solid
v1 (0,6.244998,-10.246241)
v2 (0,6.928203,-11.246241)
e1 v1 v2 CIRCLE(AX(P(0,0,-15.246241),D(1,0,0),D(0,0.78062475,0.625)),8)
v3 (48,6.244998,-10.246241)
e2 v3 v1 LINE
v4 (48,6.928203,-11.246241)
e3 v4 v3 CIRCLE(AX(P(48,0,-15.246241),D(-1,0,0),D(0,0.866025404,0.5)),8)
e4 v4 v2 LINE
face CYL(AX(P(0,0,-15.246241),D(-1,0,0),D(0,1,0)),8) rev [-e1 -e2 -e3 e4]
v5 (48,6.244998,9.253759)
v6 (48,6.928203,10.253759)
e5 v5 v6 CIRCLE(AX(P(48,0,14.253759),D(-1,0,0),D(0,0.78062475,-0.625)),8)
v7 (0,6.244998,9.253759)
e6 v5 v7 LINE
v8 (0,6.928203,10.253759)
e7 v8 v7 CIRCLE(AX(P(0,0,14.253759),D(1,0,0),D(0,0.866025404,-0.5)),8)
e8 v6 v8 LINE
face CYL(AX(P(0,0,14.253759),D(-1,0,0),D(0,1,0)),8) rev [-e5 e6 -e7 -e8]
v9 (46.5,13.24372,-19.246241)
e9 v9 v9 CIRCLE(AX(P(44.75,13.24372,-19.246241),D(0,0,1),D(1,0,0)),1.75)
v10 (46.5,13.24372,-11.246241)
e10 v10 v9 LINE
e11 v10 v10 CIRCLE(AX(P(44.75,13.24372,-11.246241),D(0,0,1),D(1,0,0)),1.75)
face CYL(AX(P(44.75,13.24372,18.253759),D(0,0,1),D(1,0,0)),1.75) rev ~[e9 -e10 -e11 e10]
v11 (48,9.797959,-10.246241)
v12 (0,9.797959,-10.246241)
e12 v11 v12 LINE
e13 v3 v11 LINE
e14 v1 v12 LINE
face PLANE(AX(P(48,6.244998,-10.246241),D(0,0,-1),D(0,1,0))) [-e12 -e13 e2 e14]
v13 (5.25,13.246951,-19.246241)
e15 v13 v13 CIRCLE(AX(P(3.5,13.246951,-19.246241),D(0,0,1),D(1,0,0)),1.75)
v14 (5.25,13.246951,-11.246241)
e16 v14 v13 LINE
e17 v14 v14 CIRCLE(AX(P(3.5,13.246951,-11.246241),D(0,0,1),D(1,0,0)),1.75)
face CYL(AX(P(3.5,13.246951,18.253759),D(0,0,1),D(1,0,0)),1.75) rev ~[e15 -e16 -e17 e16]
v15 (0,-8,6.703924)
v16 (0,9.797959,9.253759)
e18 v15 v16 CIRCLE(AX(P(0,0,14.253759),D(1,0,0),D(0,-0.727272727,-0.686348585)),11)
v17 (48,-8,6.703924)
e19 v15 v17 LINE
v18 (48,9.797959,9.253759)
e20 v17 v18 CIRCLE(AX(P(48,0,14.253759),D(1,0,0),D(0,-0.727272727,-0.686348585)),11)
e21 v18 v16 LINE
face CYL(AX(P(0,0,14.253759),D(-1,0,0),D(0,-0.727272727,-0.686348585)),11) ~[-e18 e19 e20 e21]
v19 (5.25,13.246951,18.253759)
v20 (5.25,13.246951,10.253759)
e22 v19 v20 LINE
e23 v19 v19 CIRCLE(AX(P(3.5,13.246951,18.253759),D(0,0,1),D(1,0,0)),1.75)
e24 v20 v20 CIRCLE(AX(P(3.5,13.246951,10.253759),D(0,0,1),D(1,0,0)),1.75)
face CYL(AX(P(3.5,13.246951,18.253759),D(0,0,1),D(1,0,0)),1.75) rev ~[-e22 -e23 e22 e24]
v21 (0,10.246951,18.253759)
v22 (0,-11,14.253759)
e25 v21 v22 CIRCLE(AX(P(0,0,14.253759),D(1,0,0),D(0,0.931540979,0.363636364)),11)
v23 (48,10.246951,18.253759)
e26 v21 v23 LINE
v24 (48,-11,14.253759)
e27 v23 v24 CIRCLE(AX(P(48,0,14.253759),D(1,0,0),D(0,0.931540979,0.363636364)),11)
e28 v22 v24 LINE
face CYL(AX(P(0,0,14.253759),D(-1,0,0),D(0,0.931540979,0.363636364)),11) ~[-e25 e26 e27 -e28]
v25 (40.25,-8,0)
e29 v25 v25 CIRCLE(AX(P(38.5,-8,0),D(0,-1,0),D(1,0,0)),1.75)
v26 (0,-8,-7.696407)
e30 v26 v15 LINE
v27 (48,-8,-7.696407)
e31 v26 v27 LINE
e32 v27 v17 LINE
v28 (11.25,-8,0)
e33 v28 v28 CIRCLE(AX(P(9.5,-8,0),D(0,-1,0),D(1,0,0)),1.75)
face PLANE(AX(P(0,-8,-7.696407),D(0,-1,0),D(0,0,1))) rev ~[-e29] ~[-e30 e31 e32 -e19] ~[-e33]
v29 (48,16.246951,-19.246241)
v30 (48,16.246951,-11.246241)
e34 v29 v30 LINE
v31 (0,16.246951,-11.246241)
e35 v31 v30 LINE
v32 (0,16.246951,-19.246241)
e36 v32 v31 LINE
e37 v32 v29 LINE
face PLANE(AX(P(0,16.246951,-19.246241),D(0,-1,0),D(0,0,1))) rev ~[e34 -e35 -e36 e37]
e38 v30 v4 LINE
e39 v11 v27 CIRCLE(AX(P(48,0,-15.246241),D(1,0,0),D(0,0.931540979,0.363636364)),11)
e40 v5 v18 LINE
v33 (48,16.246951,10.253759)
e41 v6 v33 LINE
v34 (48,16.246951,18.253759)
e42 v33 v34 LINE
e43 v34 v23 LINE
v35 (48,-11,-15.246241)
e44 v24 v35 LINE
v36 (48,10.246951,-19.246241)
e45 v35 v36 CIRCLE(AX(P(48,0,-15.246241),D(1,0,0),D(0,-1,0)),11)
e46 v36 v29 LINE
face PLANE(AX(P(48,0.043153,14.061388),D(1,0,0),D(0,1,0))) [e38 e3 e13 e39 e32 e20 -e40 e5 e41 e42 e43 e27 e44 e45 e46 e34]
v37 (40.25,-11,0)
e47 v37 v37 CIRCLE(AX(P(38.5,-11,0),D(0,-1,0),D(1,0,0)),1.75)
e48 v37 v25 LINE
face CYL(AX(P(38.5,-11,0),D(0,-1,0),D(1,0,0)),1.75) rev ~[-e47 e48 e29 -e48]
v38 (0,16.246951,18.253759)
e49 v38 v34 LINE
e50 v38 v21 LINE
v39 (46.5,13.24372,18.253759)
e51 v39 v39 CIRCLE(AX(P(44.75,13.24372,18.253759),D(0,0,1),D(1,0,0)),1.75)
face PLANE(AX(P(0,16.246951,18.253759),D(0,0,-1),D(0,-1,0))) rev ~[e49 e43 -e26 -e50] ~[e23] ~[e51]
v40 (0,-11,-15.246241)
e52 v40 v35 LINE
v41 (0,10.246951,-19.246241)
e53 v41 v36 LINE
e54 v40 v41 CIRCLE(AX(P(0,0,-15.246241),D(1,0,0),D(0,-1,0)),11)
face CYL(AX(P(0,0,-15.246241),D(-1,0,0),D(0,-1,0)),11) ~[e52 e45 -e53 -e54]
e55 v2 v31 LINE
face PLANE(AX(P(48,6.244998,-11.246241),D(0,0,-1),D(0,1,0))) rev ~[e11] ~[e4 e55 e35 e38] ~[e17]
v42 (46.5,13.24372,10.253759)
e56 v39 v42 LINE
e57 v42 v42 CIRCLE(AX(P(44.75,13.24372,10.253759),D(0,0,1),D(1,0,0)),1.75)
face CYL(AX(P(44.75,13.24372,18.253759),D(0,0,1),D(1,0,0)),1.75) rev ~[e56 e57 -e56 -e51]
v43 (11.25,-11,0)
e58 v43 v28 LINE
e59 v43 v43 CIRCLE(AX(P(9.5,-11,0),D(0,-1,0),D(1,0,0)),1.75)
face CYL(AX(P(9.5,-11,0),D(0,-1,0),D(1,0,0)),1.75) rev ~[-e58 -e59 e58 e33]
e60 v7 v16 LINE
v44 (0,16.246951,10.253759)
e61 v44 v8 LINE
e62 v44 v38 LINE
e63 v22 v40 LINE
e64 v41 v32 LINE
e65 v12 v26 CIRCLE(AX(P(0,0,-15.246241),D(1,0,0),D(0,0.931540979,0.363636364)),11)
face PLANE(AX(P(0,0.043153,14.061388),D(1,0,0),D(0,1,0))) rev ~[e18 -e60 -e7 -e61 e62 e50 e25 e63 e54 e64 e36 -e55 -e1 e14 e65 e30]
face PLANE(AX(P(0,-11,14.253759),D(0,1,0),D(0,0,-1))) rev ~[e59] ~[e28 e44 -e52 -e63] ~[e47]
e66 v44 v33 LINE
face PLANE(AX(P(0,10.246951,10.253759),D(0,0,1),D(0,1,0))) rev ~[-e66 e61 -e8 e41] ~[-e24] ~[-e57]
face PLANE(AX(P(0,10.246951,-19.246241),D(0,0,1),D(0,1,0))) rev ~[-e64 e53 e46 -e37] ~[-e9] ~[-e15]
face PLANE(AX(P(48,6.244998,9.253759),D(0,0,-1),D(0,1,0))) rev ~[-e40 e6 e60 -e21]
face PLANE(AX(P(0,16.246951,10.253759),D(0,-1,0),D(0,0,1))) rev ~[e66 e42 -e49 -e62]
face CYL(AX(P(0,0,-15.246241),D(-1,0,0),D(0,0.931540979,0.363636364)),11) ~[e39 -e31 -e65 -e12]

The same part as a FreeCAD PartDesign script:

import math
import FreeCAD as App
import Part
import Sketcher
from FreeCAD import Vector
Q = App.Units.Quantity


def add_polygon(sketch, points):
    """Adds a closed chain of lines whose ends are joined by coincident constraints."""
    first, n = sketch.GeometryCount, len(points)
    for a, b in zip(points, points[1:] + points[:1]):
        sketch.addGeometry(Part.LineSegment(App.Vector(*a, 0), App.Vector(*b, 0)), False)
    for i in range(n):
        sketch.addConstraint(Sketcher.Constraint("Coincident", first + i, 2, first + (i + 1) % n, 1))

doc = App.newDocument("Part")
params = doc.addObject("Spreadsheet::Sheet", "Params")
for row, (alias, value) in enumerate([
    ("sketch1_diameter", "16 mm"),
    ("sketch1_radius", "11 mm"),
    ("sketch1_width", "6 mm"),
    ("sketch1_height", "8 mm"),
    ("sketch1_height2", "29.5 mm"),
    ("pad1_length", "48 mm"),
    ("sketch2_diameter", "3.5 mm"),
    ("pocket1_length", "5 mm"),
    ("sketch3_diameter", "3.5 mm"),
    ("pocket2_length", "50 mm"),
    ("sketch4_height", "1 mm"),
    ("pocket3_length", "80 mm"),
], start=1):
    params.set(f"A{row}", alias)
    params.set(f"B{row}", "=" + value)
    params.setAlias(f"B{row}", alias)

body = doc.addObject("PartDesign::Body", "Body")

sketch1 = body.newObject("Sketcher::SketchObject", "Sketch")
sketch1.AttachmentSupport = (doc.getObject("YZ_Plane"), [""])
sketch1.MapMode = "FlatFace"
sketch1.addGeometry([
    Part.ArcOfCircle(Part.Circle(Vector(0, 14, 0), Vector(0, 0, 1), 11), math.radians(21), math.radians(180)),
    Part.LineSegment(Vector(-11, 14, 0), Vector(-11, -15, 0)),
    Part.ArcOfCircle(Part.Circle(Vector(0, -15, 0), Vector(0, 0, 1), 11), math.radians(180), math.radians(339)),
    Part.LineSegment(Vector(10, -19, 0), Vector(16, -19, 0)),
    Part.LineSegment(Vector(16, -19, 0), Vector(16, -11, 0)),
    Part.LineSegment(Vector(16, -11, 0), Vector(10, -11, 0)),
    Part.ArcOfCircle(Part.Circle(Vector(0, -15, 0), Vector(0, 0, 1), 11), math.radians(21), math.radians(137)),
    Part.LineSegment(Vector(-8, -8, 0), Vector(-8, 7, 0)),
    Part.ArcOfCircle(Part.Circle(Vector(0, 14, 0), Vector(0, 0, 1), 11), math.radians(-137), math.radians(-21)),
    Part.LineSegment(Vector(10, 10, 0), Vector(16, 10, 0)),
    Part.LineSegment(Vector(16, 10, 0), Vector(16, 18, 0)),
    Part.LineSegment(Vector(16, 18, 0), Vector(10, 18, 0)),
    Part.Circle(Vector(0, -15, 0), Vector(0, 0, 1), 8),
    Part.Circle(Vector(0, 14, 0), Vector(0, 0, 1), 8),
], False)
sketch1.addConstraint([
    Sketcher.Constraint("Tangent", 0, 2, 1, 1),
    Sketcher.Constraint("Tangent", 1, 2, 2, 1),
    Sketcher.Constraint("Coincident", 2, 2, 3, 1),
    Sketcher.Constraint("Coincident", 3, 2, 4, 1),
    Sketcher.Constraint("Coincident", 4, 2, 5, 1),
    Sketcher.Constraint("Coincident", 5, 2, 6, 1),
    Sketcher.Constraint("Coincident", 6, 2, 7, 1),
    Sketcher.Constraint("Coincident", 7, 2, 8, 1),
    Sketcher.Constraint("Coincident", 8, 2, 9, 1),
    Sketcher.Constraint("Coincident", 9, 2, 10, 1),
    Sketcher.Constraint("Coincident", 10, 2, 11, 1),
    Sketcher.Constraint("Coincident", 11, 2, 0, 1),
    Sketcher.Constraint("Vertical", 1),
    Sketcher.Constraint("Horizontal", 3),
    Sketcher.Constraint("Vertical", 4),
    Sketcher.Constraint("Horizontal", 5),
    Sketcher.Constraint("Vertical", 7),
    Sketcher.Constraint("Horizontal", 9),
    Sketcher.Constraint("Vertical", 10),
    Sketcher.Constraint("Horizontal", 11),
    Sketcher.Constraint("Coincident", 6, 3, 2, 3),
    Sketcher.Constraint("Coincident", 8, 3, 0, 3),
    Sketcher.Constraint("Coincident", 12, 3, 2, 3),
    Sketcher.Constraint("Coincident", 13, 3, 0, 3),
    Sketcher.Constraint("Equal", 0, 2),
    Sketcher.Constraint("Equal", 2, 6),
    Sketcher.Constraint("Equal", 6, 8),
    Sketcher.Constraint("Equal", 12, 13),
    Sketcher.Constraint("PointOnObject", 0, 3, -2),
    Sketcher.Constraint("Vertical", 2, 2, 5, 2),
    Sketcher.Constraint("Vertical", 5, 2, 8, 2),
    Sketcher.Constraint("Vertical", 4, 2, 9, 2),
    Sketcher.Constraint("Vertical", 8, 2, 11, 2),
    Sketcher.Constraint("Diameter", 12, Q("16 mm")),
    Sketcher.Constraint("Radius", 0, Q("11 mm")),
    Sketcher.Constraint("DistanceX", 3, 1, 3, 2, Q("6 mm")),
    Sketcher.Constraint("DistanceY", 4, 1, 4, 2, Q("8 mm")),
    Sketcher.Constraint("DistanceY", 1, 2, 1, 1, Q("29.5 mm")),
    Sketcher.Constraint("DistanceX", 6, 2, -1, 1, Q("8 mm")),
    Sketcher.Constraint("DistanceY", -1, 1, 0, 3, Q("14.253759 mm")),
])
sketch1.setExpression("Constraints[33]", "Params.sketch1_diameter")
sketch1.setExpression("Constraints[34]", "Params.sketch1_radius")
sketch1.setExpression("Constraints[35]", "Params.sketch1_width")
sketch1.setExpression("Constraints[36]", "Params.sketch1_height")
sketch1.setExpression("Constraints[37]", "Params.sketch1_height2")
pad1 = body.newObject("PartDesign::Pad", "Pad")
pad1.Profile = sketch1
pad1.setExpression("Length", "Params.pad1_length")

sketch2 = body.newObject("Sketcher::SketchObject", "Sketch001")
sketch2.AttachmentSupport = (doc.getObject("XZ_Plane"), [""])
sketch2.MapMode = "FlatFace"
sketch2.AttachmentOffset = App.Placement(Vector(0, 0, 11), App.Rotation())
sketch2.addGeometry([
    Part.Circle(Vector(38.5, 0, 0), Vector(0, 0, 1), 1.8),
    Part.Circle(Vector(9.5, 0, 0), Vector(0, 0, 1), 1.8),
], False)
sketch2.addConstraint([
    Sketcher.Constraint("Equal", 0, 1),
    Sketcher.Constraint("PointOnObject", 0, 3, -1),
    Sketcher.Constraint("PointOnObject", 1, 3, -1),
    Sketcher.Constraint("Diameter", 0, Q("3.5 mm")),
    Sketcher.Constraint("DistanceX", 1, 3, 0, 3, Q("29 mm")),
    Sketcher.Constraint("DistanceX", -1, 1, 0, 3, Q("38.5 mm")),
])
sketch2.setExpression("Constraints[3]", "Params.sketch2_diameter")
pocket1 = body.newObject("PartDesign::Pocket", "Pocket")
pocket1.Profile = sketch2
pocket1.setExpression("Length", "Params.pocket1_length")

sketch3 = body.newObject("Sketcher::SketchObject", "Sketch002")
sketch3.AttachmentSupport = (doc.getObject("XY_Plane"), [""])
sketch3.MapMode = "FlatFace"
sketch3.AttachmentOffset = App.Placement(Vector(0, 0, 18.253759), App.Rotation())
sketch3.addGeometry([
    Part.Circle(Vector(3.5, 13.2, 0), Vector(0, 0, 1), 1.8),
    Part.Circle(Vector(44.7, 13.2, 0), Vector(0, 0, 1), 1.8),
], False)
sketch3.addConstraint([
    Sketcher.Constraint("Equal", 0, 1),
    Sketcher.Constraint("Diameter", 0, Q("3.5 mm")),
    Sketcher.Constraint("DistanceX", -1, 1, 0, 3, Q("3.5 mm")),
    Sketcher.Constraint("DistanceX", -1, 1, 1, 3, Q("44.75 mm")),
    Sketcher.Constraint("DistanceY", -1, 1, 0, 3, Q("13.246951 mm")),
    Sketcher.Constraint("DistanceY", -1, 1, 1, 3, Q("13.24372 mm")),
])
sketch3.setExpression("Constraints[1]", "Params.sketch3_diameter")
pocket2 = body.newObject("PartDesign::Pocket", "Pocket001")
pocket2.Profile = sketch3
pocket2.setExpression("Length", "Params.pocket2_length")

sketch4 = body.newObject("Sketcher::SketchObject", "Sketch003")
sketch4.AttachmentSupport = (doc.getObject("YZ_Plane"), [""])
sketch4.MapMode = "FlatFace"
sketch4.AttachmentOffset = App.Placement(Vector(0, 0, 48), App.Rotation())
add_polygon(sketch4, [(6.2, 10.3), (6.2, 9.3), (10.2, 9.3), (10.2, 10.3)])
add_polygon(sketch4, [(6.2, -10.2), (6.2, -11.2), (10.2, -11.2), (10.2, -10.2)])
sketch4.addConstraint([
    Sketcher.Constraint("Vertical", 0),
    Sketcher.Constraint("Horizontal", 1),
    Sketcher.Constraint("Vertical", 2),
    Sketcher.Constraint("Horizontal", 3),
    Sketcher.Constraint("Vertical", 4),
    Sketcher.Constraint("Horizontal", 5),
    Sketcher.Constraint("Vertical", 6),
    Sketcher.Constraint("Horizontal", 7),
    Sketcher.Constraint("Vertical", 3, 2, 4, 2),
    Sketcher.Constraint("Vertical", 2, 2, 5, 2),
    Sketcher.Constraint("Equal", 2, 4),
    Sketcher.Constraint("DistanceY", 0, 2, 0, 1, Q("1 mm")),
    Sketcher.Constraint("DistanceY", 4, 2, 0, 2, Q("20.5 mm")),
    Sketcher.Constraint("DistanceX", 1, 1, 1, 2, Q("4.001953 mm")),
    Sketcher.Constraint("DistanceY", -1, 1, 0, 2, Q("9.253759 mm")),
    Sketcher.Constraint("DistanceX", -1, 1, 1, 2, Q("10.246951 mm")),
])
sketch4.setExpression("Constraints[19]", "Params.sketch4_height")
pocket3 = body.newObject("PartDesign::Pocket", "Pocket002")
pocket3.Profile = sketch4
pocket3.setExpression("Length", "Params.pocket3_length")

doc.recompute()
